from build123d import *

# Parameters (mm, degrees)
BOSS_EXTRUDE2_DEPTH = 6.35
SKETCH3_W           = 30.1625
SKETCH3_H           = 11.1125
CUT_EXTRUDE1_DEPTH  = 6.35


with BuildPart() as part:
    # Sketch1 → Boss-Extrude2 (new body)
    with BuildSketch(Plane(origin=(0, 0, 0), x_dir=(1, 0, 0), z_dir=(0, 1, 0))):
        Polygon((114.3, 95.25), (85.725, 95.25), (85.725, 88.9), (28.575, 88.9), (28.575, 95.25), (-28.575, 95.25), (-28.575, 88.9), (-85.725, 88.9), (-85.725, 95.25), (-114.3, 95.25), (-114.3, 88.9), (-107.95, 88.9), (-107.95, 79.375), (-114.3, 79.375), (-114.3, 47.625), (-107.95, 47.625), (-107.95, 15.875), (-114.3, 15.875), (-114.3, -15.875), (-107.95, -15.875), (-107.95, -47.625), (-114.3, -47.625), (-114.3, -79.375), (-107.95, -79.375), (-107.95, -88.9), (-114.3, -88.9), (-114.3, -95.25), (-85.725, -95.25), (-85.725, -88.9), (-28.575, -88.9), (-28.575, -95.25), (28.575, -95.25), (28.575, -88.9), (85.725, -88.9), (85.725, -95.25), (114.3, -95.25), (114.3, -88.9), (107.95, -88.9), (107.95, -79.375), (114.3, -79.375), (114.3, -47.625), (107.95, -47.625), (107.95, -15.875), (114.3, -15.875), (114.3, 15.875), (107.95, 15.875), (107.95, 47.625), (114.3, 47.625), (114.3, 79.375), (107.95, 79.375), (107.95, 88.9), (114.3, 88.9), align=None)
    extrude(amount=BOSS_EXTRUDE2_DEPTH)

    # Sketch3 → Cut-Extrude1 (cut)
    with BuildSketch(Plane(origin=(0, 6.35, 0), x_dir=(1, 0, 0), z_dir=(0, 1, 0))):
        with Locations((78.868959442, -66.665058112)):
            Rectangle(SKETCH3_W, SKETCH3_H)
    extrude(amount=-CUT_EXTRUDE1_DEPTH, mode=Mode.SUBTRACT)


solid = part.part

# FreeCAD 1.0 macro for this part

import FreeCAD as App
import Part
import Sketcher
Q = App.Units.Quantity


def add_polygon(sketch, points):
    """Adds a closed chain of lines whose ends are joined by coincident constraints."""
    first, n = sketch.GeometryCount, len(points)
    for a, b in zip(points, points[1:] + points[:1]):
        sketch.addGeometry(Part.LineSegment(App.Vector(*a, 0), App.Vector(*b, 0)), False)
    for i in range(n):
        sketch.addConstraint(Sketcher.Constraint("Coincident", first + i, 2, first + (i + 1) % n, 1))

doc = App.newDocument("Part")
params = doc.addObject("Spreadsheet::Sheet", "Params")
for row, (alias, value) in enumerate([
    ("sketch1_width", "2.25 in"),
    ("sketch1_width2", "0.25 in"),
    ("sketch1_height", "1.25 in"),
    ("pad1_length", "0.25 in"),
    ("sketch2_width", "1.1875 in"),
    ("sketch2_height", "0.4375 in"),
    ("pocket1_length", "0.25 in"),
], start=1):
    params.set(f"A{row}", alias)
    params.set(f"B{row}", "=" + value)
    params.setAlias(f"B{row}", alias)

body = doc.addObject("PartDesign::Body", "Body")

sketch1 = body.newObject("Sketcher::SketchObject", "Sketch")
sketch1.AttachmentSupport = (doc.getObject("XZ_Plane"), [""])
sketch1.MapMode = "FlatFace"
add_polygon(sketch1, [(114, -95), (86, -95), (86, -89), (29, -89), (29, -95), (-29, -95), (-29, -89), (-86, -89), (-86, -95), (-114, -95), (-114, -89), (-108, -89), (-108, -79), (-114, -79), (-114, -48), (-108, -48), (-108, -16), (-114, -16), (-114, 16), (-108, 16), (-108, 48), (-114, 48), (-114, 79), (-108, 79), (-108, 89), (-114, 89), (-114, 95), (-86, 95), (-86, 89), (-29, 89), (-29, 95), (29, 95), (29, 89), (86, 89), (86, 95), (114, 95), (114, 89), (108, 89), (108, 79), (114, 79), (114, 48), (108, 48), (108, 16), (114, 16), (114, -16), (108, -16), (108, -48), (114, -48), (114, -79), (108, -79), (108, -89), (114, -89)])
sketch1.addConstraint(Sketcher.Constraint("Horizontal", 0))
sketch1.addConstraint(Sketcher.Constraint("Vertical", 1))
sketch1.addConstraint(Sketcher.Constraint("Horizontal", 2))
sketch1.addConstraint(Sketcher.Constraint("Vertical", 3))
sketch1.addConstraint(Sketcher.Constraint("Horizontal", 4))
sketch1.addConstraint(Sketcher.Constraint("Vertical", 5))
sketch1.addConstraint(Sketcher.Constraint("Horizontal", 6))
sketch1.addConstraint(Sketcher.Constraint("Vertical", 7))
sketch1.addConstraint(Sketcher.Constraint("Horizontal", 8))
sketch1.addConstraint(Sketcher.Constraint("Vertical", 9))
sketch1.addConstraint(Sketcher.Constraint("Horizontal", 10))
sketch1.addConstraint(Sketcher.Constraint("Vertical", 11))
sketch1.addConstraint(Sketcher.Constraint("Horizontal", 12))
sketch1.addConstraint(Sketcher.Constraint("Vertical", 13))
sketch1.addConstraint(Sketcher.Constraint("Horizontal", 14))
sketch1.addConstraint(Sketcher.Constraint("Vertical", 15))
sketch1.addConstraint(Sketcher.Constraint("Horizontal", 16))
sketch1.addConstraint(Sketcher.Constraint("Vertical", 17))
sketch1.addConstraint(Sketcher.Constraint("Horizontal", 18))
sketch1.addConstraint(Sketcher.Constraint("Vertical", 19))
sketch1.addConstraint(Sketcher.Constraint("Horizontal", 20))
sketch1.addConstraint(Sketcher.Constraint("Vertical", 21))
sketch1.addConstraint(Sketcher.Constraint("Horizontal", 22))
sketch1.addConstraint(Sketcher.Constraint("Vertical", 23))
sketch1.addConstraint(Sketcher.Constraint("Horizontal", 24))
sketch1.addConstraint(Sketcher.Constraint("Vertical", 25))
sketch1.addConstraint(Sketcher.Constraint("Horizontal", 26))
sketch1.addConstraint(Sketcher.Constraint("Vertical", 27))
sketch1.addConstraint(Sketcher.Constraint("Horizontal", 28))
sketch1.addConstraint(Sketcher.Constraint("Vertical", 29))
sketch1.addConstraint(Sketcher.Constraint("Horizontal", 30))
sketch1.addConstraint(Sketcher.Constraint("Vertical", 31))
sketch1.addConstraint(Sketcher.Constraint("Horizontal", 32))
sketch1.addConstraint(Sketcher.Constraint("Vertical", 33))
sketch1.addConstraint(Sketcher.Constraint("Horizontal", 34))
sketch1.addConstraint(Sketcher.Constraint("Vertical", 35))
sketch1.addConstraint(Sketcher.Constraint("Horizontal", 36))
sketch1.addConstraint(Sketcher.Constraint("Vertical", 37))
sketch1.addConstraint(Sketcher.Constraint("Horizontal", 38))
sketch1.addConstraint(Sketcher.Constraint("Vertical", 39))
sketch1.addConstraint(Sketcher.Constraint("Horizontal", 40))
sketch1.addConstraint(Sketcher.Constraint("Vertical", 41))
sketch1.addConstraint(Sketcher.Constraint("Horizontal", 42))
sketch1.addConstraint(Sketcher.Constraint("Vertical", 43))
sketch1.addConstraint(Sketcher.Constraint("Horizontal", 44))
sketch1.addConstraint(Sketcher.Constraint("Vertical", 45))
sketch1.addConstraint(Sketcher.Constraint("Horizontal", 46))
sketch1.addConstraint(Sketcher.Constraint("Vertical", 47))
sketch1.addConstraint(Sketcher.Constraint("Horizontal", 48))
sketch1.addConstraint(Sketcher.Constraint("Vertical", 49))
sketch1.addConstraint(Sketcher.Constraint("Horizontal", 50))
sketch1.addConstraint(Sketcher.Constraint("Vertical", 51))
sketch1.addConstraint(Sketcher.Constraint("Symmetric", 0, 2, 26, 2, -1, 1))
sketch1.addConstraint(Sketcher.Constraint("Symmetric", 2, 2, 28, 2, -1, 1))
sketch1.addConstraint(Sketcher.Constraint("Symmetric", 4, 2, 30, 2, -1, 1))
sketch1.addConstraint(Sketcher.Constraint("Symmetric", 6, 2, 32, 2, -1, 1))
sketch1.addConstraint(Sketcher.Constraint("Symmetric", 8, 2, 34, 2, -1, 1))
sketch1.addConstraint(Sketcher.Constraint("Symmetric", 10, 2, 36, 2, -1, 1))
sketch1.addConstraint(Sketcher.Constraint("Symmetric", 12, 2, 38, 2, -1, 1))
sketch1.addConstraint(Sketcher.Constraint("Symmetric", 14, 2, 40, 2, -1, 1))
sketch1.addConstraint(Sketcher.Constraint("Symmetric", 16, 2, 42, 2, -1, 1))
sketch1.addConstraint(Sketcher.Constraint("Symmetric", 18, 2, 44, 2, -1, 1))
sketch1.addConstraint(Sketcher.Constraint("Symmetric", 20, 2, 46, 2, -1, 1))
sketch1.addConstraint(Sketcher.Constraint("Symmetric", 22, 2, 48, 2, -1, 1))
sketch1.addConstraint(Sketcher.Constraint("Symmetric", 24, 2, 50, 2, -1, 1))
sketch1.addConstraint(Sketcher.Constraint("Symmetric", 2, 2, 5, 2, -2))
sketch1.addConstraint(Sketcher.Constraint("Symmetric", 0, 2, 7, 2, -2))
sketch1.addConstraint(Sketcher.Constraint("Symmetric", 24, 2, 35, 2, -2))
sketch1.addConstraint(Sketcher.Constraint("Symmetric", 22, 2, 37, 2, -2))
sketch1.addConstraint(Sketcher.Constraint("Symmetric", 20, 2, 39, 2, -2))
sketch1.addConstraint(Sketcher.Constraint("Symmetric", 18, 2, 41, 2, -2))
sketch1.addConstraint(Sketcher.Constraint("Horizontal", 0, 2, 3, 2))
sketch1.addConstraint(Sketcher.Constraint("Horizontal", 6, 2, 9, 2))
sketch1.addConstraint(Sketcher.Constraint("Vertical", 9, 2, 12, 2))
sketch1.addConstraint(Sketcher.Constraint("Vertical", 11, 2, 14, 2))
sketch1.addConstraint(Sketcher.Constraint("Vertical", 13, 2, 16, 2))
sketch1.addConstraint(Sketcher.Constraint("Equal", 2, 4))
sketch1.addConstraint(Sketcher.Constraint("Equal", 50, 1))
sketch1.addConstraint(Sketcher.Constraint("Equal", 13, 15))
sketch1.addConstraint(Sketcher.Constraint("Equal", 15, 17))
sketch1.addConstraint(Sketcher.Constraint("DistanceX", 2, 2, 2, 1, Q("2.25 in")))
sketch1.addConstraint(Sketcher.Constraint("DistanceX", 10, 1, 10, 2, Q("0.25 in")))
sketch1.addConstraint(Sketcher.Constraint("DistanceY", 13, 1, 13, 2, Q("1.25 in")))
sketch1.addConstraint(Sketcher.Constraint("DistanceY", 1, 2, -1, 1, Q("3.5 in")))
sketch1.addConstraint(Sketcher.Constraint("DistanceX", 8, 2, -1, 1, Q("4.5 in")))
sketch1.setExpression("Constraints[132]", "Params.sketch1_width")
sketch1.setExpression("Constraints[133]", "Params.sketch1_width2")
sketch1.setExpression("Constraints[134]", "Params.sketch1_height")
pad1 = body.newObject("PartDesign::Pad", "Pad")
pad1.Profile = sketch1
pad1.setExpression("Length", "Params.pad1_length")
pad1.Reversed = True

sketch2 = body.newObject("Sketcher::SketchObject", "Sketch001")
sketch2.AttachmentSupport = (doc.getObject("XZ_Plane"), [""])
sketch2.MapMode = "FlatFace"
sketch2.AttachmentOffset = App.Placement(App.Vector(0, 0, -0.25 * 25.4), App.Rotation())
add_polygon(sketch2, [(64, 61), (64, 72), (94, 72), (94, 61)])
sketch2.addConstraint(Sketcher.Constraint("Vertical", 0))
sketch2.addConstraint(Sketcher.Constraint("Horizontal", 1))
sketch2.addConstraint(Sketcher.Constraint("Vertical", 2))
sketch2.addConstraint(Sketcher.Constraint("Horizontal", 3))
sketch2.addConstraint(Sketcher.Constraint("DistanceX", 1, 1, 1, 2, Q("1.1875 in")))
sketch2.addConstraint(Sketcher.Constraint("DistanceY", 0, 1, 0, 2, Q("0.4375 in")))
sketch2.addConstraint(Sketcher.Constraint("DistanceX", -1, 1, 0, 2, 63.787709))
sketch2.addConstraint(Sketcher.Constraint("DistanceY", -1, 1, 0, 2, 72.221308))
sketch2.setExpression("Constraints[8]", "Params.sketch2_width")
sketch2.setExpression("Constraints[9]", "Params.sketch2_height")
pocket1 = body.newObject("PartDesign::Pocket", "Pocket")
pocket1.Profile = sketch2
pocket1.setExpression("Length", "Params.pocket1_length")
pocket1.Reversed = True

doc.recompute()
